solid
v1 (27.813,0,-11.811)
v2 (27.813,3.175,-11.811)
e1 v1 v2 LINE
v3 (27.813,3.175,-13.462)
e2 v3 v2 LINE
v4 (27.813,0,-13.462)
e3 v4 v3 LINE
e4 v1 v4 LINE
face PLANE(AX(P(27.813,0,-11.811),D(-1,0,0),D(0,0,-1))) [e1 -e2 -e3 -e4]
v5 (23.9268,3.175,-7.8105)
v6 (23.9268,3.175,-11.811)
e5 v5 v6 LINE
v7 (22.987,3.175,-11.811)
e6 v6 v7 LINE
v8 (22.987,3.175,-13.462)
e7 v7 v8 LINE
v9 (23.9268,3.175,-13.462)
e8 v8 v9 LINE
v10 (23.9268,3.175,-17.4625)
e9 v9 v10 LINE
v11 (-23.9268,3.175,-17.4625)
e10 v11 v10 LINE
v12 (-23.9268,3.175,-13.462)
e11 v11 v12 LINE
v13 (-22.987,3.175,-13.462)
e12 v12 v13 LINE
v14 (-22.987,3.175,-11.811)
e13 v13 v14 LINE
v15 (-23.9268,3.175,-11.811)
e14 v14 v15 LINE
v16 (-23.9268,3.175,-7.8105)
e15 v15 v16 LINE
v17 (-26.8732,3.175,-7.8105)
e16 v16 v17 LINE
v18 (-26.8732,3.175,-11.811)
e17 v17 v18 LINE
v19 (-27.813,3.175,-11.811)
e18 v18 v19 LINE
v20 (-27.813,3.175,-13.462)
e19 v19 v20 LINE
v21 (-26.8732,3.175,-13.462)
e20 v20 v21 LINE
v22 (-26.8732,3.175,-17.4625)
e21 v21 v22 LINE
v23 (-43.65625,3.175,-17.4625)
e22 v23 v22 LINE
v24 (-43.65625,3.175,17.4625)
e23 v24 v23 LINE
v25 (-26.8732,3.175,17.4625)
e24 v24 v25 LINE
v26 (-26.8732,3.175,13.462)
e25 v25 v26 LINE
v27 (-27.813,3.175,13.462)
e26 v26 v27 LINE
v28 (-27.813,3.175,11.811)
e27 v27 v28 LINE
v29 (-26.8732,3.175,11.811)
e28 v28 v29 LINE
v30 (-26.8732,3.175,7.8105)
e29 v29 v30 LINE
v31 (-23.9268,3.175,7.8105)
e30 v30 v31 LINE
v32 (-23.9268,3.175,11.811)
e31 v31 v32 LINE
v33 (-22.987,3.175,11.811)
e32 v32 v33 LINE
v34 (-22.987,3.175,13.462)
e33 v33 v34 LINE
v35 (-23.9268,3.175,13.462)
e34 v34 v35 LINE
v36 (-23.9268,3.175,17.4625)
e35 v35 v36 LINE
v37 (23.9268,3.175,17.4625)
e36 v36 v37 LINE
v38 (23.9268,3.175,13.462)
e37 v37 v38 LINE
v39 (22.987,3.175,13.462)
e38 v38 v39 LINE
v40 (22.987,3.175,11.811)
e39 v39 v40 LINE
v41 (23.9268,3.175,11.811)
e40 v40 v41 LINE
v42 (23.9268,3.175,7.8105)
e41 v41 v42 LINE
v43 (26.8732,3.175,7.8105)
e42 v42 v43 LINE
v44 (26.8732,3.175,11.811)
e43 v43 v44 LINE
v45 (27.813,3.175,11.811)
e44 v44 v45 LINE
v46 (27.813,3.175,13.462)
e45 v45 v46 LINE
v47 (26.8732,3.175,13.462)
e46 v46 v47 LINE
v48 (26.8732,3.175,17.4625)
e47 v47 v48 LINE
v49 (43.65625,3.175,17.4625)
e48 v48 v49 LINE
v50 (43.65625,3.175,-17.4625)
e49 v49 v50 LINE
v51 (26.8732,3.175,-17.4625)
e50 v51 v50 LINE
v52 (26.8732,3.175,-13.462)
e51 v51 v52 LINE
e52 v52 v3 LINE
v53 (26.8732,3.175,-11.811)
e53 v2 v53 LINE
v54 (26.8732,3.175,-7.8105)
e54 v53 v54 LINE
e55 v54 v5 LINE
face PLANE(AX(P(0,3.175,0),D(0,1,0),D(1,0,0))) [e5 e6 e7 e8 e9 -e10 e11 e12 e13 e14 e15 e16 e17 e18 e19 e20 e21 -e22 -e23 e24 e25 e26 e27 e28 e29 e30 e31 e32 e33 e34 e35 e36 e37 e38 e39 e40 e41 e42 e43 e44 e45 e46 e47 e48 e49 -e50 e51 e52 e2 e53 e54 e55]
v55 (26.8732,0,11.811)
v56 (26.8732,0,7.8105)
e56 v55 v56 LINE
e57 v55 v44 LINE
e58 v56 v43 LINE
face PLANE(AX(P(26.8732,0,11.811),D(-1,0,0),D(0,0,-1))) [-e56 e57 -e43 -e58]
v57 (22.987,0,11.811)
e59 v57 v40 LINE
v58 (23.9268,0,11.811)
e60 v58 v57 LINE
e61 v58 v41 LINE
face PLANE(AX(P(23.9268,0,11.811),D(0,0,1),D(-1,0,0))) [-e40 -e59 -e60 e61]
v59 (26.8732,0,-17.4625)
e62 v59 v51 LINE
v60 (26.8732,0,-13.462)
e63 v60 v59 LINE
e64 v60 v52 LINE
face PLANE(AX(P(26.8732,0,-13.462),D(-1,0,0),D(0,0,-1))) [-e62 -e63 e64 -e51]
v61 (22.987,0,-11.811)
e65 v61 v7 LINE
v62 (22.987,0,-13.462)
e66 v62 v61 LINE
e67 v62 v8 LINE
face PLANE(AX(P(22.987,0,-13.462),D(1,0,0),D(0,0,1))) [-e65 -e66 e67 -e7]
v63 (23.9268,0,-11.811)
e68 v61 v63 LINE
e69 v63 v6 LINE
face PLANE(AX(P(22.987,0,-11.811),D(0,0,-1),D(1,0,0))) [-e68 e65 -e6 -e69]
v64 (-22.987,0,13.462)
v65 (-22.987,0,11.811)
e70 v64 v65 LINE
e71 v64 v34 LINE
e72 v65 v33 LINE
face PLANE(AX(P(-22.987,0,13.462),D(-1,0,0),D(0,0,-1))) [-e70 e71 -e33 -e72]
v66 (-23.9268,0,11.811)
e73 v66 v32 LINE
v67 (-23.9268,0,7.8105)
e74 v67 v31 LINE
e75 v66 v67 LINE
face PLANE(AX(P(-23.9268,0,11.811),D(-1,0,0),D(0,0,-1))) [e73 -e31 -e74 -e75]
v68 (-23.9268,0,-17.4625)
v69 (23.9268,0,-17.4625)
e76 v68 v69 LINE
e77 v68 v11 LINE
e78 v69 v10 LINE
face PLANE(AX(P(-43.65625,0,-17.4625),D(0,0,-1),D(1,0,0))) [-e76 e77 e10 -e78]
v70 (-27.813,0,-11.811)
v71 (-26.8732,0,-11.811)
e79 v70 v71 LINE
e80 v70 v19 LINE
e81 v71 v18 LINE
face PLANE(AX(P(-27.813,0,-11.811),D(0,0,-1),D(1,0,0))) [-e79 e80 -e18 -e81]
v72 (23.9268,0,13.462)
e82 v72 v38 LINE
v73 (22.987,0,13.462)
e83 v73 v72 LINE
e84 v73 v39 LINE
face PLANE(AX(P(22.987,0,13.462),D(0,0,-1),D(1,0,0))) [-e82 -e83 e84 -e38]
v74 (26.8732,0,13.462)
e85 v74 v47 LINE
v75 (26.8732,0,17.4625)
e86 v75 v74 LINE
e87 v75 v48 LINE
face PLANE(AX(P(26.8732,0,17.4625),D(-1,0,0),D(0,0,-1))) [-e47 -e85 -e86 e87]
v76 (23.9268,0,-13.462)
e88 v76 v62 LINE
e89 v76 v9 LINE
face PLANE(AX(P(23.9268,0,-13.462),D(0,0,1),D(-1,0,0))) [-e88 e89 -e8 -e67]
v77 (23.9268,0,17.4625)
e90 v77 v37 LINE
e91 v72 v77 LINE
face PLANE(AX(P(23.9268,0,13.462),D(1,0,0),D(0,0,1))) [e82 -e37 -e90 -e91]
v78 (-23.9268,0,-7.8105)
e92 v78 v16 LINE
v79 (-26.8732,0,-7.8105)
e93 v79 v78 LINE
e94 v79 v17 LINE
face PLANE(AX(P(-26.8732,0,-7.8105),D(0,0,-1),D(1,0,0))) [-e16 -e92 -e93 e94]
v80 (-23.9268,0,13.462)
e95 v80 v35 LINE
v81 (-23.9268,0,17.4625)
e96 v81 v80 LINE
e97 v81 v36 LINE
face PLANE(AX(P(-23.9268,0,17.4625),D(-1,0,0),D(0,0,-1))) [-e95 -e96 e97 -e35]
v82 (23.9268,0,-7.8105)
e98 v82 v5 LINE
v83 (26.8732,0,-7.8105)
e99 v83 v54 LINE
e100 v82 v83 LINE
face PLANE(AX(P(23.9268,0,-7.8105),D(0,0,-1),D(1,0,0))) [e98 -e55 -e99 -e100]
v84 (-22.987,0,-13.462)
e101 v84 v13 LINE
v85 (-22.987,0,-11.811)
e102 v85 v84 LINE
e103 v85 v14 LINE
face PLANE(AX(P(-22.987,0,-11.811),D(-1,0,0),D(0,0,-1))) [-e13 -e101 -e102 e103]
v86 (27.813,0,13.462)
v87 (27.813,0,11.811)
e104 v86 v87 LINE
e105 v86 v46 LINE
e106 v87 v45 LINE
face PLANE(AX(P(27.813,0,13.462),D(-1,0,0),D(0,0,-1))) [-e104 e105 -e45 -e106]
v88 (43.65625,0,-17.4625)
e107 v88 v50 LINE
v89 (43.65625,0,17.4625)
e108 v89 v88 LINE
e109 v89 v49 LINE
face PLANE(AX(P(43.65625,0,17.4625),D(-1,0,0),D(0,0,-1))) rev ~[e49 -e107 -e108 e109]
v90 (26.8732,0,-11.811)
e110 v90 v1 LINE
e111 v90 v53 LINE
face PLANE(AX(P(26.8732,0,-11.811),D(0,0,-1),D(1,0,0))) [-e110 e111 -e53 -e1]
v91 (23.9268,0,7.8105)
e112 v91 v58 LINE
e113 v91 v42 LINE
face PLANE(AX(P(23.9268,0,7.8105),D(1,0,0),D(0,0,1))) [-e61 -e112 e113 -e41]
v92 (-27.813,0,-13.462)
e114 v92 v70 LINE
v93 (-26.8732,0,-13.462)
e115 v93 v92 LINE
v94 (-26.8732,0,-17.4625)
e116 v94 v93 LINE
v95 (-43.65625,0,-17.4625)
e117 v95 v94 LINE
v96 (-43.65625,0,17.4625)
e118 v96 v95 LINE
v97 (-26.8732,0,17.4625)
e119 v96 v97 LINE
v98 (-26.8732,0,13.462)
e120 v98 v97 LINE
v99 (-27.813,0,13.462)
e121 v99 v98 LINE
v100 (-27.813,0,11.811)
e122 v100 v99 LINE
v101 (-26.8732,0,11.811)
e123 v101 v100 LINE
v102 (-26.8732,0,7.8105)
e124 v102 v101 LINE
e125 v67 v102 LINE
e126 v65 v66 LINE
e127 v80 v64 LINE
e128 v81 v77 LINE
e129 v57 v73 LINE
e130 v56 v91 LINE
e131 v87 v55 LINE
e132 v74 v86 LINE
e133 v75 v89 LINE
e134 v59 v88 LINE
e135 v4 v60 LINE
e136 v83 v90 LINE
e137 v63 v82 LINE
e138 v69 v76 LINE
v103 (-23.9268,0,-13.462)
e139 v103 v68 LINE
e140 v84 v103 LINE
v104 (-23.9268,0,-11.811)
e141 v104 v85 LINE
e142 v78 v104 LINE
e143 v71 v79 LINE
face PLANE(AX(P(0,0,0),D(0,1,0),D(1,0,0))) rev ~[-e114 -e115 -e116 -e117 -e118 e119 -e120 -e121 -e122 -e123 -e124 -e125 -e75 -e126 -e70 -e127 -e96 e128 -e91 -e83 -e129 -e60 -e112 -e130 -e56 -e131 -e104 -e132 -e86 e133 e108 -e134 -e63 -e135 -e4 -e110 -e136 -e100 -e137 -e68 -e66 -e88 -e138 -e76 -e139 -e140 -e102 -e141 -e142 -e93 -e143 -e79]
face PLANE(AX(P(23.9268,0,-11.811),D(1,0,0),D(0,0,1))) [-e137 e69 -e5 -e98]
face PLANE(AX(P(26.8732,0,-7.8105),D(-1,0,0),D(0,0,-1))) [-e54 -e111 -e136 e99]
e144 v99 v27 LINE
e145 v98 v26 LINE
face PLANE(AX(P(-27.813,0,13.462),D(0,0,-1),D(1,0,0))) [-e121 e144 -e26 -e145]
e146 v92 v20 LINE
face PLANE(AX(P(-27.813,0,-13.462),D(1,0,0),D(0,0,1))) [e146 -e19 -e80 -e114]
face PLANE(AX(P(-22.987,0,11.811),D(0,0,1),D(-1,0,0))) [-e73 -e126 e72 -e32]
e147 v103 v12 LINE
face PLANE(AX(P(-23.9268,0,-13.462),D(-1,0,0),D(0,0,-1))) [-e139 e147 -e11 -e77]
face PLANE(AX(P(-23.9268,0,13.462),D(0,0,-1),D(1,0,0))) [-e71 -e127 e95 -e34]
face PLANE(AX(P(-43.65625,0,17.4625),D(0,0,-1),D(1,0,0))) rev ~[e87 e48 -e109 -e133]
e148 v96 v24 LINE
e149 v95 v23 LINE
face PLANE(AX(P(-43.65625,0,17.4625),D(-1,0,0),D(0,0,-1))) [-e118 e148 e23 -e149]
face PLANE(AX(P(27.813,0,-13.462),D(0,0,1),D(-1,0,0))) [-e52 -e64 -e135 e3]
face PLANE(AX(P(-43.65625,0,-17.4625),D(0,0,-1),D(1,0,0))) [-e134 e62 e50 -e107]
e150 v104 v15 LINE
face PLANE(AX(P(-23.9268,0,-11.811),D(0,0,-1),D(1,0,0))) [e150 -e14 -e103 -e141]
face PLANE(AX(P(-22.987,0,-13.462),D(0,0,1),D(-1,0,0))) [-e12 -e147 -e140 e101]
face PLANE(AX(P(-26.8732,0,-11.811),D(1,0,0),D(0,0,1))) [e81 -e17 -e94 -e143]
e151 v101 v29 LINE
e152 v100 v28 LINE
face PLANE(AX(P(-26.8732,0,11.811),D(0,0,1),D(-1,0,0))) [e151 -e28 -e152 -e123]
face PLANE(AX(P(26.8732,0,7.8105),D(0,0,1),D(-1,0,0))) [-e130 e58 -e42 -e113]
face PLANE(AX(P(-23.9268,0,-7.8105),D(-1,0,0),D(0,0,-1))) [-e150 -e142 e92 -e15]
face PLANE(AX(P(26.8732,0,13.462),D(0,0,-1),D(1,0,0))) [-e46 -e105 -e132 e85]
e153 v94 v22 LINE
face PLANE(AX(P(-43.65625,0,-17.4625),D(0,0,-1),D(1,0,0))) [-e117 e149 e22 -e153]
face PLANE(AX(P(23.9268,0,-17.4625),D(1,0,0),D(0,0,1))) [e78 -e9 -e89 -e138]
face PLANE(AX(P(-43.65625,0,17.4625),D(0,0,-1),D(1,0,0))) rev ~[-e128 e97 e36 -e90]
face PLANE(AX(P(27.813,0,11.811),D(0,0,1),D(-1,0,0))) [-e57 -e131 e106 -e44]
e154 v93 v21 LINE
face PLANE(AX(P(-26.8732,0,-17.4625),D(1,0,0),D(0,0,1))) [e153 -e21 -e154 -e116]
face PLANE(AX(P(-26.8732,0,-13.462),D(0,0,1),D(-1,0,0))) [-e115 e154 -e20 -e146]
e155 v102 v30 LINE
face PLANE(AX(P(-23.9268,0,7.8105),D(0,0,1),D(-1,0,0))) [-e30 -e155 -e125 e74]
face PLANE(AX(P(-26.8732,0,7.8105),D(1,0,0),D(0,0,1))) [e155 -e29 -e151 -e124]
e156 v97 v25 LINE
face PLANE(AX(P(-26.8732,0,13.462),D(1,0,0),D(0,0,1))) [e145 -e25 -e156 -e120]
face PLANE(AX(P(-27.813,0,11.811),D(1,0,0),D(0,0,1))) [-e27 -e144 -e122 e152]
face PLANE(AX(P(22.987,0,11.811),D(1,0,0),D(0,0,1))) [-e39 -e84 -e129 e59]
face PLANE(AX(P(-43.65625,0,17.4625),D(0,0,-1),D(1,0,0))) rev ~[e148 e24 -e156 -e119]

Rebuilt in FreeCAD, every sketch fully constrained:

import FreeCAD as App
import Part
import Sketcher
Q = App.Units.Quantity


def add_polygon(sketch, points):
    """Adds a closed chain of lines whose ends are joined by coincident constraints."""
    first, n = sketch.GeometryCount, len(points)
    for a, b in zip(points, points[1:] + points[:1]):
        sketch.addGeometry(Part.LineSegment(App.Vector(*a, 0), App.Vector(*b, 0)), False)
    for i in range(n):
        sketch.addConstraint(Sketcher.Constraint("Coincident", first + i, 2, first + (i + 1) % n, 1))

doc = App.newDocument("Part")
params = doc.addObject("Spreadsheet::Sheet", "Params")
for row, (alias, value) in enumerate([
    ("sketch1_width", "3.4375 in"),
    ("sketch1_height", "1.375 in"),
    ("pad1_length", "0.125 in"),
    ("sketch2_width", "0.116 in"),
    ("sketch2_width2", "0.037 in"),
    ("sketch2_height", "0.065 in"),
], start=1):
    params.set(f"A{row}", alias)
    params.set(f"B{row}", "=" + value)
    params.setAlias(f"B{row}", alias)

body = doc.addObject("PartDesign::Body", "Body")

# Sketch on XZ plane
sketch1 = body.newObject("Sketcher::SketchObject", "Sketch")
sketch1.AttachmentSupport = (doc.getObject("XZ_Plane"), [""])
sketch1.MapMode = "FlatFace"
add_polygon(sketch1, [(-43.65625, -17.4625), (-43.65625, 17.4625), (43.65625, 17.4625), (43.65625, -17.4625)])  # lines 0-3
sketch1.addConstraint(Sketcher.Constraint("Vertical", 0))
sketch1.addConstraint(Sketcher.Constraint("Horizontal", 1))
sketch1.addConstraint(Sketcher.Constraint("Vertical", 2))
sketch1.addConstraint(Sketcher.Constraint("Horizontal", 3))
sketch1.addConstraint(Sketcher.Constraint("Symmetric", 0, 2, 2, 2, -1, 1))
sketch1.addConstraint(Sketcher.Constraint("DistanceX", 1, 1, 1, 2, Q("3.4375 in")))
sketch1.addConstraint(Sketcher.Constraint("DistanceY", 0, 1, 0, 2, Q("1.375 in")))
sketch1.setExpression("Constraints[9]", "Params.sketch1_width")
sketch1.setExpression("Constraints[10]", "Params.sketch1_height")
pad1 = body.newObject("PartDesign::Pad", "Pad")
pad1.Profile = sketch1
pad1.setExpression("Length", "Params.pad1_length")
pad1.Reversed = True

# Sketch on XZ plane
sketch2 = body.newObject("Sketcher::SketchObject", "Sketch001")
sketch2.AttachmentSupport = (doc.getObject("XZ_Plane"), [""])
sketch2.MapMode = "FlatFace"
add_polygon(sketch2, [(-23.9268, 17.4625), (-26.8732, 17.4625), (-26.8732, 13.462), (-27.813, 13.462), (-27.813, 11.811), (-26.8732, 11.811), (-26.8732, 7.8105), (-23.9268, 7.8105), (-23.9268, 11.811), (-22.987, 11.811), (-22.987, 13.462), (-23.9268, 13.462)])  # lines 0-11
add_polygon(sketch2, [(26.8732, 7.8105), (26.8732, 11.811), (27.813, 11.811), (27.813, 13.462), (26.8732, 13.462), (26.8732, 17.4625), (23.9268, 17.4625), (23.9268, 13.462), (22.987, 13.462), (22.987, 11.811), (23.9268, 11.811), (23.9268, 7.8105)])  # lines 12-23
add_polygon(sketch2, [(23.9268, -17.4625), (26.8732, -17.4625), (26.8732, -13.462), (27.813, -13.462), (27.813, -11.811), (26.8732, -11.811), (26.8732, -7.8105), (23.9268, -7.8105), (23.9268, -11.811), (22.987, -11.811), (22.987, -13.462), (23.9268, -13.462)])  # lines 24-35
add_polygon(sketch2, [(-26.8732, -7.8105), (-26.8732, -11.811), (-27.813, -11.811), (-27.813, -13.462), (-26.8732, -13.462), (-26.8732, -17.4625), (-23.9268, -17.4625), (-23.9268, -13.462), (-22.987, -13.462), (-22.987, -11.811), (-23.9268, -11.811), (-23.9268, -7.8105)])  # lines 36-47
sketch2.addConstraint(Sketcher.Constraint("Horizontal", 0))
sketch2.addConstraint(Sketcher.Constraint("Vertical", 1))
sketch2.addConstraint(Sketcher.Constraint("Horizontal", 2))
sketch2.addConstraint(Sketcher.Constraint("Vertical", 3))
sketch2.addConstraint(Sketcher.Constraint("Horizontal", 4))
sketch2.addConstraint(Sketcher.Constraint("Vertical", 5))
sketch2.addConstraint(Sketcher.Constraint("Horizontal", 6))
sketch2.addConstraint(Sketcher.Constraint("Vertical", 7))
sketch2.addConstraint(Sketcher.Constraint("Horizontal", 8))
sketch2.addConstraint(Sketcher.Constraint("Vertical", 9))
sketch2.addConstraint(Sketcher.Constraint("Horizontal", 10))
sketch2.addConstraint(Sketcher.Constraint("Vertical", 11))
sketch2.addConstraint(Sketcher.Constraint("Vertical", 12))
sketch2.addConstraint(Sketcher.Constraint("Horizontal", 13))
sketch2.addConstraint(Sketcher.Constraint("Vertical", 14))
sketch2.addConstraint(Sketcher.Constraint("Horizontal", 15))
sketch2.addConstraint(Sketcher.Constraint("Vertical", 16))
sketch2.addConstraint(Sketcher.Constraint("Horizontal", 17))
sketch2.addConstraint(Sketcher.Constraint("Vertical", 18))
sketch2.addConstraint(Sketcher.Constraint("Horizontal", 19))
sketch2.addConstraint(Sketcher.Constraint("Vertical", 20))
sketch2.addConstraint(Sketcher.Constraint("Horizontal", 21))
sketch2.addConstraint(Sketcher.Constraint("Vertical", 22))
sketch2.addConstraint(Sketcher.Constraint("Horizontal", 23))
sketch2.addConstraint(Sketcher.Constraint("Horizontal", 24))
sketch2.addConstraint(Sketcher.Constraint("Vertical", 25))
sketch2.addConstraint(Sketcher.Constraint("Horizontal", 26))
sketch2.addConstraint(Sketcher.Constraint("Vertical", 27))
sketch2.addConstraint(Sketcher.Constraint("Horizontal", 28))
sketch2.addConstraint(Sketcher.Constraint("Vertical", 29))
sketch2.addConstraint(Sketcher.Constraint("Horizontal", 30))
sketch2.addConstraint(Sketcher.Constraint("Vertical", 31))
sketch2.addConstraint(Sketcher.Constraint("Horizontal", 32))
sketch2.addConstraint(Sketcher.Constraint("Vertical", 33))
sketch2.addConstraint(Sketcher.Constraint("Horizontal", 34))
sketch2.addConstraint(Sketcher.Constraint("Vertical", 35))
sketch2.addConstraint(Sketcher.Constraint("Vertical", 36))
sketch2.addConstraint(Sketcher.Constraint("Horizontal", 37))
sketch2.addConstraint(Sketcher.Constraint("Vertical", 38))
sketch2.addConstraint(Sketcher.Constraint("Horizontal", 39))
sketch2.addConstraint(Sketcher.Constraint("Vertical", 40))
sketch2.addConstraint(Sketcher.Constraint("Horizontal", 41))
sketch2.addConstraint(Sketcher.Constraint("Vertical", 42))
sketch2.addConstraint(Sketcher.Constraint("Horizontal", 43))
sketch2.addConstraint(Sketcher.Constraint("Vertical", 44))
sketch2.addConstraint(Sketcher.Constraint("Horizontal", 45))
sketch2.addConstraint(Sketcher.Constraint("Vertical", 46))
sketch2.addConstraint(Sketcher.Constraint("Horizontal", 47))
sketch2.addConstraint(Sketcher.Constraint("Symmetric", 0, 2, 24, 2, -1, 1))
sketch2.addConstraint(Sketcher.Constraint("Symmetric", 2, 2, 26, 2, -1, 1))
sketch2.addConstraint(Sketcher.Constraint("Symmetric", 4, 2, 28, 2, -1, 1))
sketch2.addConstraint(Sketcher.Constraint("Symmetric", 6, 2, 30, 2, -1, 1))
sketch2.addConstraint(Sketcher.Constraint("Symmetric", 8, 2, 32, 2, -1, 1))
sketch2.addConstraint(Sketcher.Constraint("Symmetric", 10, 2, 34, 2, -1, 1))
sketch2.addConstraint(Sketcher.Constraint("Symmetric", 12, 2, 36, 2, -1, 1))
sketch2.addConstraint(Sketcher.Constraint("Symmetric", 14, 2, 38, 2, -1, 1))
sketch2.addConstraint(Sketcher.Constraint("Symmetric", 16, 2, 40, 2, -1, 1))
sketch2.addConstraint(Sketcher.Constraint("Symmetric", 18, 2, 42, 2, -1, 1))
sketch2.addConstraint(Sketcher.Constraint("Symmetric", 20, 2, 44, 2, -1, 1))
sketch2.addConstraint(Sketcher.Constraint("Symmetric", 22, 2, 46, 2, -1, 1))
sketch2.addConstraint(Sketcher.Constraint("Symmetric", 4, 2, 12, 2, -2))
sketch2.addConstraint(Sketcher.Constraint("Symmetric", 2, 2, 14, 2, -2))
sketch2.addConstraint(Sketcher.Constraint("Symmetric", 0, 2, 16, 2, -2))
sketch2.addConstraint(Sketcher.Constraint("Symmetric", 10, 2, 18, 2, -2))
sketch2.addConstraint(Sketcher.Constraint("Symmetric", 8, 2, 20, 2, -2))
sketch2.addConstraint(Sketcher.Constraint("Symmetric", 6, 2, 22, 2, -2))
sketch2.addConstraint(Sketcher.Constraint("Horizontal", 4, 2, 7, 2))
sketch2.addConstraint(Sketcher.Constraint("Horizontal", 2, 2, 9, 2))
sketch2.addConstraint(Sketcher.Constraint("Vertical", 1, 2, 4, 2))
sketch2.addConstraint(Sketcher.Constraint("Vertical", 7, 2, 10, 2))
sketch2.addConstraint(Sketcher.Constraint("Equal", 4, 8))
sketch2.addConstraint(Sketcher.Constraint("Equal", 1, 5))
sketch2.addConstraint(Sketcher.Constraint("DistanceX", 7, 2, 12, 2, Q("2 in")))
sketch2.addConstraint(Sketcher.Constraint("DistanceX", 0, 2, 0, 1, Q("0.116 in")))
sketch2.addConstraint(Sketcher.Constraint("DistanceX", 2, 2, 2, 1, Q("0.037 in")))
sketch2.addConstraint(Sketcher.Constraint("DistanceY", 3, 2, 3, 1, Q("0.065 in")))
sketch2.addConstraint(Sketcher.Constraint("DistanceY", -1, 1, 1, 2, Q("0.53 in")))
sketch2.addConstraint(Sketcher.Constraint("DistanceY", 5, 2, 0, 2, Q("0.38 in")))
sketch2.setExpression("Constraints[121]", "Params.sketch2_width")
sketch2.setExpression("Constraints[122]", "Params.sketch2_width2")
sketch2.setExpression("Constraints[123]", "Params.sketch2_height")
pocket1 = body.newObject("PartDesign::Pocket", "Pocket")
pocket1.Profile = sketch2
pocket1.Type = "ThroughAll"

doc.recompute()
